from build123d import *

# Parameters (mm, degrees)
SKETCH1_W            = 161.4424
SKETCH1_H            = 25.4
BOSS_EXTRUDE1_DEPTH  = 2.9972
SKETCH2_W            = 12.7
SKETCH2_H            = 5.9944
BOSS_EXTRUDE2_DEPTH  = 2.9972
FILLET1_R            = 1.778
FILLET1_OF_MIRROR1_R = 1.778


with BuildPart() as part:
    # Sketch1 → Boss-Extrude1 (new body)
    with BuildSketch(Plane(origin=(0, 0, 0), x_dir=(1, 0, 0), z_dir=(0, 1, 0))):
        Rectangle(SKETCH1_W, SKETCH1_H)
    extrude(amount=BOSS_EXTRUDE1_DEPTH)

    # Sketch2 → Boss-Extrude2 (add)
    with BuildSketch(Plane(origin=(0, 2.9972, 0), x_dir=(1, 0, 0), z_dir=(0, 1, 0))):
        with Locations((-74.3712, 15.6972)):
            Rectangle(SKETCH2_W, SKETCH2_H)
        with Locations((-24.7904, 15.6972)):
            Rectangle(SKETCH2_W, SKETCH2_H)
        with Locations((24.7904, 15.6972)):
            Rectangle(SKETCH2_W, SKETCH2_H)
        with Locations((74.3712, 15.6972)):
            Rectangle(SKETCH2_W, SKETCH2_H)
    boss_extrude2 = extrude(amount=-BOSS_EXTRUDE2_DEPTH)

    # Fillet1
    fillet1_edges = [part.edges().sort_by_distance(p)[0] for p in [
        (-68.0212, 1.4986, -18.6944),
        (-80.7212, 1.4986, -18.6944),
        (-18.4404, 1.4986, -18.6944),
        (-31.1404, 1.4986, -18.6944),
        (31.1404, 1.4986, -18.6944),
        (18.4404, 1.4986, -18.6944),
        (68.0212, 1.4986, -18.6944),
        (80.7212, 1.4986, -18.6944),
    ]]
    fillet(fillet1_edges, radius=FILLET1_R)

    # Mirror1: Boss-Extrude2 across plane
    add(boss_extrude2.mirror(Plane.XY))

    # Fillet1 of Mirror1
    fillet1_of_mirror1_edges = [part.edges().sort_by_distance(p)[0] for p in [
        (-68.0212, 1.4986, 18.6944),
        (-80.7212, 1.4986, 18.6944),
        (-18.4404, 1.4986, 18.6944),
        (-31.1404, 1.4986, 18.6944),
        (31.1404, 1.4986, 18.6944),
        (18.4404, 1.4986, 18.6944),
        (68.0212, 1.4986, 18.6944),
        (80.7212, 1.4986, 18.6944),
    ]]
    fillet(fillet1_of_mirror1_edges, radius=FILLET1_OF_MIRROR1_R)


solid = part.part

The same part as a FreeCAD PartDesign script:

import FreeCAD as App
import Part
import Sketcher
from FreeCAD import Vector
Q = App.Units.Quantity


def edges_at(feature, points):
    """Names of the edges that pass closest to the given points."""
    edges = feature.Shape.Edges
    near = lambda p: min(range(len(edges)), key=lambda i: edges[i].distToShape(Part.Vertex(*p))[0])
    return sorted({f"Edge{near(p) + 1}" for p in points})

doc = App.newDocument("Part")
params = doc.addObject("Spreadsheet::Sheet", "Params")
for row, (alias, value) in enumerate([
    ("sketch1_height", "1 in"),
    ("sketch1_width", "6.356 in"),
    ("pad1_length", "0.118 in"),
    ("sketch2_width", "0.5 in"),
    ("sketch2_height", "0.236 in"),
    ("pad2_length", "0.118 in"),
    ("fillet_radius", "0.07 in"),
    ("fillet2_radius", "0.07 in"),
], start=1):
    params.set(f"A{row}", alias)
    params.set(f"B{row}", "=" + value)
    params.setAlias(f"B{row}", alias)

body = doc.addObject("PartDesign::Body", "Body")

# Sketch on XZ plane
sketch1 = body.newObject("Sketcher::SketchObject", "Sketch")
sketch1.AttachmentSupport = (doc.getObject("XZ_Plane"), [""])
sketch1.MapMode = "FlatFace"
sketch1.addGeometry(Part.LineSegment(Vector(-81, -13, 0), Vector(-81, 13, 0)), False)
sketch1.addGeometry(Part.LineSegment(Vector(-81, 13, 0), Vector(81, 13, 0)), False)
sketch1.addGeometry(Part.LineSegment(Vector(81, 13, 0), Vector(81, -13, 0)), False)
sketch1.addGeometry(Part.LineSegment(Vector(81, -13, 0), Vector(-81, -13, 0)), False)
sketch1.addConstraint(Sketcher.Constraint("Coincident", 0, 2, 1, 1))
sketch1.addConstraint(Sketcher.Constraint("Coincident", 1, 2, 2, 1))
sketch1.addConstraint(Sketcher.Constraint("Coincident", 2, 2, 3, 1))
sketch1.addConstraint(Sketcher.Constraint("Coincident", 3, 2, 0, 1))
sketch1.addConstraint(Sketcher.Constraint("Vertical", 0))
sketch1.addConstraint(Sketcher.Constraint("Horizontal", 1))
sketch1.addConstraint(Sketcher.Constraint("Vertical", 2))
sketch1.addConstraint(Sketcher.Constraint("Horizontal", 3))
sketch1.addConstraint(Sketcher.Constraint("Symmetric", 0, 2, 2, 2, -1, 1))
sketch1.addConstraint(Sketcher.Constraint("DistanceY", 0, 1, 0, 2, Q("1 in")))
sketch1.addConstraint(Sketcher.Constraint("DistanceX", 1, 1, 1, 2, Q("6.356 in")))
sketch1.setExpression("Constraints[9]", "Params.sketch1_height")
sketch1.setExpression("Constraints[10]", "Params.sketch1_width")
pad1 = body.newObject("PartDesign::Pad", "Pad")
pad1.Profile = sketch1
pad1.setExpression("Length", "Params.pad1_length")
pad1.Reversed = True

# Sketch on XZ plane
sketch2 = body.newObject("Sketcher::SketchObject", "Sketch001")
sketch2.AttachmentSupport = (doc.getObject("XZ_Plane"), [""])
sketch2.MapMode = "FlatFace"
sketch2.AttachmentOffset = App.Placement(Vector(0, 0, -0.118 * 25.4), App.Rotation())
sketch2.addGeometry(Part.LineSegment(Vector(-81, -19, 0), Vector(-81, -13, 0)), False)
sketch2.addGeometry(Part.LineSegment(Vector(-81, -13, 0), Vector(-68, -13, 0)), False)
sketch2.addGeometry(Part.LineSegment(Vector(-68, -13, 0), Vector(-68, -19, 0)), False)
sketch2.addGeometry(Part.LineSegment(Vector(-68, -19, 0), Vector(-81, -19, 0)), False)
sketch2.addGeometry(Part.LineSegment(Vector(-31, -19, 0), Vector(-31, -13, 0)), False)
sketch2.addGeometry(Part.LineSegment(Vector(-31, -13, 0), Vector(-18, -13, 0)), False)
sketch2.addGeometry(Part.LineSegment(Vector(-18, -13, 0), Vector(-18, -19, 0)), False)
sketch2.addGeometry(Part.LineSegment(Vector(-18, -19, 0), Vector(-31, -19, 0)), False)
sketch2.addGeometry(Part.LineSegment(Vector(18, -19, 0), Vector(18, -13, 0)), False)
sketch2.addGeometry(Part.LineSegment(Vector(18, -13, 0), Vector(31, -13, 0)), False)
sketch2.addGeometry(Part.LineSegment(Vector(31, -13, 0), Vector(31, -19, 0)), False)
sketch2.addGeometry(Part.LineSegment(Vector(31, -19, 0), Vector(18, -19, 0)), False)
sketch2.addGeometry(Part.LineSegment(Vector(68, -19, 0), Vector(68, -13, 0)), False)
sketch2.addGeometry(Part.LineSegment(Vector(68, -13, 0), Vector(81, -13, 0)), False)
sketch2.addGeometry(Part.LineSegment(Vector(81, -13, 0), Vector(81, -19, 0)), False)
sketch2.addGeometry(Part.LineSegment(Vector(81, -19, 0), Vector(68, -19, 0)), False)
sketch2.addConstraint(Sketcher.Constraint("Coincident", 0, 2, 1, 1))
sketch2.addConstraint(Sketcher.Constraint("Coincident", 1, 2, 2, 1))
sketch2.addConstraint(Sketcher.Constraint("Coincident", 2, 2, 3, 1))
sketch2.addConstraint(Sketcher.Constraint("Coincident", 3, 2, 0, 1))
sketch2.addConstraint(Sketcher.Constraint("Coincident", 4, 2, 5, 1))
sketch2.addConstraint(Sketcher.Constraint("Coincident", 5, 2, 6, 1))
sketch2.addConstraint(Sketcher.Constraint("Coincident", 6, 2, 7, 1))
sketch2.addConstraint(Sketcher.Constraint("Coincident", 7, 2, 4, 1))
sketch2.addConstraint(Sketcher.Constraint("Coincident", 8, 2, 9, 1))
sketch2.addConstraint(Sketcher.Constraint("Coincident", 9, 2, 10, 1))
sketch2.addConstraint(Sketcher.Constraint("Coincident", 10, 2, 11, 1))
sketch2.addConstraint(Sketcher.Constraint("Coincident", 11, 2, 8, 1))
sketch2.addConstraint(Sketcher.Constraint("Coincident", 12, 2, 13, 1))
sketch2.addConstraint(Sketcher.Constraint("Coincident", 13, 2, 14, 1))
sketch2.addConstraint(Sketcher.Constraint("Coincident", 14, 2, 15, 1))
sketch2.addConstraint(Sketcher.Constraint("Coincident", 15, 2, 12, 1))
sketch2.addConstraint(Sketcher.Constraint("Vertical", 0))
sketch2.addConstraint(Sketcher.Constraint("Horizontal", 1))
sketch2.addConstraint(Sketcher.Constraint("Vertical", 2))
sketch2.addConstraint(Sketcher.Constraint("Horizontal", 3))
sketch2.addConstraint(Sketcher.Constraint("Vertical", 4))
sketch2.addConstraint(Sketcher.Constraint("Horizontal", 5))
sketch2.addConstraint(Sketcher.Constraint("Vertical", 6))
sketch2.addConstraint(Sketcher.Constraint("Horizontal", 7))
sketch2.addConstraint(Sketcher.Constraint("Vertical", 8))
sketch2.addConstraint(Sketcher.Constraint("Horizontal", 9))
sketch2.addConstraint(Sketcher.Constraint("Vertical", 10))
sketch2.addConstraint(Sketcher.Constraint("Horizontal", 11))
sketch2.addConstraint(Sketcher.Constraint("Vertical", 12))
sketch2.addConstraint(Sketcher.Constraint("Horizontal", 13))
sketch2.addConstraint(Sketcher.Constraint("Vertical", 14))
sketch2.addConstraint(Sketcher.Constraint("Horizontal", 15))
sketch2.addConstraint(Sketcher.Constraint("Symmetric", 5, 2, 8, 2, -2))
sketch2.addConstraint(Sketcher.Constraint("Symmetric", 7, 2, 10, 2, -2))
sketch2.addConstraint(Sketcher.Constraint("Symmetric", 1, 2, 12, 2, -2))
sketch2.addConstraint(Sketcher.Constraint("Symmetric", 3, 2, 14, 2, -2))
sketch2.addConstraint(Sketcher.Constraint("Horizontal", 1, 2, 4, 2))
sketch2.addConstraint(Sketcher.Constraint("Horizontal", 3, 2, 6, 2))
sketch2.addConstraint(Sketcher.Constraint("Equal", 3, 5))
sketch2.addConstraint(Sketcher.Constraint("DistanceX", 1, 1, 1, 2, Q("0.5 in")))
sketch2.addConstraint(Sketcher.Constraint("DistanceY", 0, 2, -1, 1, Q("0.5 in")))
sketch2.addConstraint(Sketcher.Constraint("DistanceY", 0, 1, 0, 2, Q("0.236 in")))
sketch2.addConstraint(Sketcher.Constraint("DistanceX", 0, 2, -1, 1, Q("3.178 in")))
sketch2.addConstraint(Sketcher.Constraint("DistanceX", 4, 2, -1, 1, Q("1.226 in")))
sketch2.setExpression("Constraints[39]", "Params.sketch2_width")
sketch2.setExpression("Constraints[41]", "Params.sketch2_height")
pad2 = body.newObject("PartDesign::Pad", "Pad001")
pad2.Profile = sketch2
pad2.setExpression("Length", "Params.pad2_length")
doc.recompute()

fillet = body.newObject("PartDesign::Fillet", "Fillet")
fillet.Base = (pad2, edges_at(pad2, [
    (-68.021, 1.499, -18.694),
    (-80.721, 1.499, -18.694),
    (-18.44, 1.499, -18.694),
    (-31.14, 1.499, -18.694),
    (31.14, 1.499, -18.694),
    (18.44, 1.499, -18.694),
    (68.021, 1.499, -18.694),
    (80.721, 1.499, -18.694),
]))
fillet.setExpression("Radius", "Params.fillet_radius")
doc.recompute()

mirrored = body.newObject("PartDesign::Mirrored", "Mirrored")
mirrored.Originals = [pad2]
mirrored.MirrorPlane = (doc.getObject("XY_Plane"), [""])
body.Tip = mirrored
doc.recompute()

fillet2 = body.newObject("PartDesign::Fillet", "Fillet001")
fillet2.Base = (mirrored, edges_at(mirrored, [
    (-68.021, 1.499, 18.694),
    (-80.721, 1.499, 18.694),
    (-18.44, 1.499, 18.694),
    (-31.14, 1.499, 18.694),
    (31.14, 1.499, 18.694),
    (18.44, 1.499, 18.694),
    (68.021, 1.499, 18.694),
    (80.721, 1.499, 18.694),
]))
fillet2.setExpression("Radius", "Params.fillet2_radius")

doc.recompute()
